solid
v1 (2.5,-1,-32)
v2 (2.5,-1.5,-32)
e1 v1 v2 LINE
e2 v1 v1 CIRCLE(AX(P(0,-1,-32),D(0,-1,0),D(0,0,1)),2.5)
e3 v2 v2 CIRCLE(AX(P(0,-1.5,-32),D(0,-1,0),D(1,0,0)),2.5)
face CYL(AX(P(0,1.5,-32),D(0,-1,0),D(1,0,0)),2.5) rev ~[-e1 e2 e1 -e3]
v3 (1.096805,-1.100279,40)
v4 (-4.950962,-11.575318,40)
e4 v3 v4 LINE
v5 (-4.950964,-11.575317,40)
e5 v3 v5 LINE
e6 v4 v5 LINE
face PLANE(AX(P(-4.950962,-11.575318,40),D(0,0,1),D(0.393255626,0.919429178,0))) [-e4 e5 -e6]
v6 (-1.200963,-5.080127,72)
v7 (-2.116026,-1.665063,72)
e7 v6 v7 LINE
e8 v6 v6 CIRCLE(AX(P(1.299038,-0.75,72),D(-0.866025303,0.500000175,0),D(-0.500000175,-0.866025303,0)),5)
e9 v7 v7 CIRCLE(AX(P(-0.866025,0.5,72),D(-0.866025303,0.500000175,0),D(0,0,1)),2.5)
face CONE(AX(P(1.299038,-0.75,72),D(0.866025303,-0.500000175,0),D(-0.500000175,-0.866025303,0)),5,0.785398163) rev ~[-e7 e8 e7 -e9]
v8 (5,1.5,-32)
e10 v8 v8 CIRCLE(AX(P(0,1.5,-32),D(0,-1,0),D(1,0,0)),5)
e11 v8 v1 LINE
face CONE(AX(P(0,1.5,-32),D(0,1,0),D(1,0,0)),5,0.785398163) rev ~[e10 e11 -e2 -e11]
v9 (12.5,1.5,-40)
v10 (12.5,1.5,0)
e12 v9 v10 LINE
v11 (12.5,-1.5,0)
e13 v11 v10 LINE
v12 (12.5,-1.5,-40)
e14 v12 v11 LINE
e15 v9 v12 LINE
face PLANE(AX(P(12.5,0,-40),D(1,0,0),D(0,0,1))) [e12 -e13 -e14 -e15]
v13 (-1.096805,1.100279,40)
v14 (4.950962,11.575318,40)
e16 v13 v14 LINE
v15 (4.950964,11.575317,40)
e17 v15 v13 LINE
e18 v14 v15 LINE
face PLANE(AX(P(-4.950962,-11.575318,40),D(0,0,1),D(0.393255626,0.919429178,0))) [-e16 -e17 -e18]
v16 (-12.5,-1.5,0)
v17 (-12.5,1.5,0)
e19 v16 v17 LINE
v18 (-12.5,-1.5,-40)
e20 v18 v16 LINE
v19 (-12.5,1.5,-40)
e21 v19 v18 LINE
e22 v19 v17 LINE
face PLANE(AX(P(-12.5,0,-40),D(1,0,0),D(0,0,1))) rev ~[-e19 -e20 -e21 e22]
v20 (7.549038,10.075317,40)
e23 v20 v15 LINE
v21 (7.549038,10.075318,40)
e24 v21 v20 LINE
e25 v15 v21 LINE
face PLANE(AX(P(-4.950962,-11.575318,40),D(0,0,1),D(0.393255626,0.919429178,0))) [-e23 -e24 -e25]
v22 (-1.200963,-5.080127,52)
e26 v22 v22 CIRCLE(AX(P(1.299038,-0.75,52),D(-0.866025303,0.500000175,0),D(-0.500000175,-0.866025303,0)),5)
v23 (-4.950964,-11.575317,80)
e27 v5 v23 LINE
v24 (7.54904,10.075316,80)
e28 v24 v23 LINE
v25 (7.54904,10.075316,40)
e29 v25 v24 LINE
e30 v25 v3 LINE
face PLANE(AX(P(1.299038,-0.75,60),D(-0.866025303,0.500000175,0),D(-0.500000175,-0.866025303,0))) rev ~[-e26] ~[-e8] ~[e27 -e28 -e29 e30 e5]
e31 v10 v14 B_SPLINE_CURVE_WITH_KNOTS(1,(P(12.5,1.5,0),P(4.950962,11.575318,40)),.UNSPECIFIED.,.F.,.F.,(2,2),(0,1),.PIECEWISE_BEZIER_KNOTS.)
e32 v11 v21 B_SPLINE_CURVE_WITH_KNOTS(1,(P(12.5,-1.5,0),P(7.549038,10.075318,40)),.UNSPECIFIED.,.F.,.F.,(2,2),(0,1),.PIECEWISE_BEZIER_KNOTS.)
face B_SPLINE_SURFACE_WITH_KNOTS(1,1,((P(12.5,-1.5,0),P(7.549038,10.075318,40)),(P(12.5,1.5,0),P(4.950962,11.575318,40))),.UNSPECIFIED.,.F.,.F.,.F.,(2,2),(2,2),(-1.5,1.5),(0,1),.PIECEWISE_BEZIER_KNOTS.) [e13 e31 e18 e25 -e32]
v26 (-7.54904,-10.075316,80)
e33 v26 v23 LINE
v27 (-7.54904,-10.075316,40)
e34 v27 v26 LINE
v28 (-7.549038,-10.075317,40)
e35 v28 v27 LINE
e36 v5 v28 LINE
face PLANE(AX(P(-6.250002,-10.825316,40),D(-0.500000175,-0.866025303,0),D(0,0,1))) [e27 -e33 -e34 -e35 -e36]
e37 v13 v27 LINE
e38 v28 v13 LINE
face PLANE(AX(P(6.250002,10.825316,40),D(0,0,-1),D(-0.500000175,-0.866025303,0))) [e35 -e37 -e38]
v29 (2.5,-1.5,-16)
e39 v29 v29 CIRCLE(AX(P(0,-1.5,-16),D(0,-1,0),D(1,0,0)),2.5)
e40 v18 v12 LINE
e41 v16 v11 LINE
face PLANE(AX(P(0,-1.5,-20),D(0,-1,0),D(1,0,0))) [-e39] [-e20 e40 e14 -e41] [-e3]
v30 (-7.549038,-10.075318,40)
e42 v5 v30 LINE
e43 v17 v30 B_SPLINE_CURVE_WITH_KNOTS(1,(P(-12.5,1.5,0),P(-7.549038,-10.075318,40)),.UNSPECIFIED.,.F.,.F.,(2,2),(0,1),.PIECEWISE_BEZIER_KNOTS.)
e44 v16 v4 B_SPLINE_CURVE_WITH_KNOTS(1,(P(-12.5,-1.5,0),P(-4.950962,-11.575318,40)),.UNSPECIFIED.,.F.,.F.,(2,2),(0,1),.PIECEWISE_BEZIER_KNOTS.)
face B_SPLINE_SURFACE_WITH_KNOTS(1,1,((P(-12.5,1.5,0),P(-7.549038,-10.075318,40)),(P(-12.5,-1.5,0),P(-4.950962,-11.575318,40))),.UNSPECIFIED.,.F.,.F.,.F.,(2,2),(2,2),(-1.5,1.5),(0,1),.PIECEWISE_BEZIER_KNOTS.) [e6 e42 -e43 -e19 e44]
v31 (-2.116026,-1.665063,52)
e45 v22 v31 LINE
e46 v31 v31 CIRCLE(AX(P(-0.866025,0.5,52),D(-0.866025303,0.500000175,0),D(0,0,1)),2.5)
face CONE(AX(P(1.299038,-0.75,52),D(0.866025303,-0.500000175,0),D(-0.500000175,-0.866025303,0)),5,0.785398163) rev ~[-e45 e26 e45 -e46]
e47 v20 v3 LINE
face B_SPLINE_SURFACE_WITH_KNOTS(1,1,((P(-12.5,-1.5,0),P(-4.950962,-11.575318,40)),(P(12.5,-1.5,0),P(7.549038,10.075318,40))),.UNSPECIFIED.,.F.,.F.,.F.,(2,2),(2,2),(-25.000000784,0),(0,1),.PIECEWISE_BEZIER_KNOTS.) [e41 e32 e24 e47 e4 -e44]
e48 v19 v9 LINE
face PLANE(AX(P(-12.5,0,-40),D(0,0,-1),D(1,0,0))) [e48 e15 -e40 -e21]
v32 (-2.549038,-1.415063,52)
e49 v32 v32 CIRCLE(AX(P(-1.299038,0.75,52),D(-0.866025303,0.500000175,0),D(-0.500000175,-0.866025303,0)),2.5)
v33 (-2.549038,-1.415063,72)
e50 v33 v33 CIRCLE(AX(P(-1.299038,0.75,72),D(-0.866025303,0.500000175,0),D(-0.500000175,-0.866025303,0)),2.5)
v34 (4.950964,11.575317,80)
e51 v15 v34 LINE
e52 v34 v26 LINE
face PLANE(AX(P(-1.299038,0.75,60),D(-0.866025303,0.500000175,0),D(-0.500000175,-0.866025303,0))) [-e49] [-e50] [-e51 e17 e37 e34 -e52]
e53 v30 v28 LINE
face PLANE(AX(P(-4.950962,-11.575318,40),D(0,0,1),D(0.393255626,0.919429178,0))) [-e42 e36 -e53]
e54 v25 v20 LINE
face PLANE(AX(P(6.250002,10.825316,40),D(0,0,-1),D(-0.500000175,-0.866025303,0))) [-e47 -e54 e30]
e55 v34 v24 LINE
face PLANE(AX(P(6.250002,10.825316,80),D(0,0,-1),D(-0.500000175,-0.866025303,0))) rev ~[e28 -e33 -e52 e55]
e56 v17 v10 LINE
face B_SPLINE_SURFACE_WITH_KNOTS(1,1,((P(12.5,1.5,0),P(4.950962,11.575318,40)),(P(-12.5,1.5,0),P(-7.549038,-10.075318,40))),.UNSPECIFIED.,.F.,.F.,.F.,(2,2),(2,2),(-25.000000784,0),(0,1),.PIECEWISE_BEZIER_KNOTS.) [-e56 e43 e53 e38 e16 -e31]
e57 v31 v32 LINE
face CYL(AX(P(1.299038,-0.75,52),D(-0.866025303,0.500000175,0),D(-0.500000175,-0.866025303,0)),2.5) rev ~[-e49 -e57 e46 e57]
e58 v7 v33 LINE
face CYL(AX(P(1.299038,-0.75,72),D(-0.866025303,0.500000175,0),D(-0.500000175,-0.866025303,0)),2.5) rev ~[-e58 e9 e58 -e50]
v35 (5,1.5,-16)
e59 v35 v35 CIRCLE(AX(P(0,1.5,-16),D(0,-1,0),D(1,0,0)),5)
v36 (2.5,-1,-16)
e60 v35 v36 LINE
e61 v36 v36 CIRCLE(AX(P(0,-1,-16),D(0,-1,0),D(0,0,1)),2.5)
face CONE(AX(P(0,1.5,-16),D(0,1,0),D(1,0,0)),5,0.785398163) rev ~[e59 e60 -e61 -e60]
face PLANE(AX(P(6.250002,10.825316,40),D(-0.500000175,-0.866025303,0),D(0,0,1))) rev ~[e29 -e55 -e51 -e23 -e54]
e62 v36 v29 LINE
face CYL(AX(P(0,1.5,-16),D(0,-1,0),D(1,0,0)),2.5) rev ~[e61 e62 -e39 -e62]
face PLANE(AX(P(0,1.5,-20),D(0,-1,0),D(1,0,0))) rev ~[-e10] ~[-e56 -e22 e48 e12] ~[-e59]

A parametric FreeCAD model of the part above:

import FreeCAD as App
import Part
import Sketcher

V = App.Vector
Q = App.Units.Quantity

doc = App.newDocument("Part")
body = doc.addObject("PartDesign::Body", "Body")

# Sketch on XZ plane
sketch1 = body.newObject("Sketcher::SketchObject", "Sketch")
sketch1.AttachmentSupport = (doc.getObject("XZ_Plane"), [""])
sketch1.MapMode = "FlatFace"
sketch1.addGeometry([
    Part.LineSegment(V(-12, 0, 0), V(-12, -40, 0)),
    Part.LineSegment(V(-12, -40, 0), V(12, -40, 0)),
    Part.LineSegment(V(12, -40, 0), V(12, 0, 0)),
    Part.LineSegment(V(12, 0, 0), V(-12, 0, 0)),
], False)
sketch1.addConstraint([
    Sketcher.Constraint("Coincident", 0, 2, 1, 1),
    Sketcher.Constraint("Coincident", 1, 2, 2, 1),
    Sketcher.Constraint("Coincident", 2, 2, 3, 1),
    Sketcher.Constraint("Coincident", 3, 2, 0, 1),
    Sketcher.Constraint("Vertical", 0),
    Sketcher.Constraint("Horizontal", 1),
    Sketcher.Constraint("Vertical", 2),
    Sketcher.Constraint("Horizontal", 3),
    Sketcher.Constraint("Symmetric", 2, 2, 3, 2, -1, 1),
    Sketcher.Constraint("DistanceX", 1, 1, 1, 2, 25.0),
    Sketcher.Constraint("DistanceY", 0, 2, 0, 1, 40.0),
])
pad1 = body.newObject("PartDesign::Pad", "Pad")
pad1.Profile = sketch1
pad1.Length = 3
pad1.Midplane = True
body2 = doc.addObject("PartDesign::Body", "Body001")

# Sketch on an angled plane
sketch2 = body2.newObject("Sketcher::SketchObject", "Sketch001")
sketch2.Placement = App.Placement(V(0, 0, 0), App.Rotation(V(-0.500000175, -0.866025303, 0), V(0, 0, 1), V(-0.866025303, 0.500000175, 0), "ZXY"))
sketch2.addGeometry([
    Part.LineSegment(V(-13, 80, 0), V(-13, 40, 0)),
    Part.LineSegment(V(-13, 40, 0), V(13, 40, 0)),
    Part.LineSegment(V(13, 40, 0), V(13, 80, 0)),
    Part.LineSegment(V(13, 80, 0), V(-13, 80, 0)),
], False)
sketch2.addConstraint([
    Sketcher.Constraint("Coincident", 0, 2, 1, 1),
    Sketcher.Constraint("Coincident", 1, 2, 2, 1),
    Sketcher.Constraint("Coincident", 2, 2, 3, 1),
    Sketcher.Constraint("Coincident", 3, 2, 0, 1),
    Sketcher.Constraint("Vertical", 0),
    Sketcher.Constraint("Horizontal", 1),
    Sketcher.Constraint("Vertical", 2),
    Sketcher.Constraint("Horizontal", 3),
    Sketcher.Constraint("DistanceX", 1, 1, 1, 2, 25.0),
    Sketcher.Constraint("DistanceY", 0, 2, 0, 1, 40.0),
    Sketcher.Constraint("DistanceY", -1, 1, 0, 2, 40.0),
    Sketcher.Constraint("DistanceX", 0, 2, -1, 1, 12.5),
])
pad2 = body2.newObject("PartDesign::Pad", "Pad001")
pad2.Profile = sketch2
pad2.Length = 3
pad2.Midplane = True
body.AllowCompound = True
doc.recompute()

boolean = body.newObject("PartDesign::Boolean", "Boolean")
boolean.Type = "Fuse"
boolean.addObjects([body2])

# Sketch on XY plane
sketch3 = body.newObject("Sketcher::SketchObject", "Sketch002")
sketch3.AttachmentSupport = (doc.getObject("XY_Plane"), [""])
sketch3.MapMode = "FlatFace"
sketch3.addGeometry([
    Part.LineSegment(V(-12.5, 1.5, 0), V(-12.5, -1.5, 0)),
    Part.LineSegment(V(-12.5, -1.5, 0), V(12.5, -1.5, 0)),
    Part.LineSegment(V(12.5, -1.5, 0), V(12.5, 1.5, 0)),
    Part.LineSegment(V(12.5, 1.5, 0), V(-12.5, 1.5, 0)),
], False)
sketch3.addConstraint([
    Sketcher.Constraint("Coincident", 0, 2, 1, 1),
    Sketcher.Constraint("Coincident", 1, 2, 2, 1),
    Sketcher.Constraint("Coincident", 2, 2, 3, 1),
    Sketcher.Constraint("Coincident", 3, 2, 0, 1),
    Sketcher.Constraint("Vertical", 0),
    Sketcher.Constraint("Horizontal", 1),
    Sketcher.Constraint("Vertical", 2),
    Sketcher.Constraint("Horizontal", 3),
    Sketcher.Constraint("Symmetric", 0, 2, 2, 2, -1, 1),
    Sketcher.Constraint("DistanceX", 1, 1, 1, 2, 25.0),
    Sketcher.Constraint("DistanceY", 0, 2, 0, 1, 3.0),
])

# Sketch on XY plane
sketch4 = body.newObject("Sketcher::SketchObject", "Sketch003")
sketch4.AttachmentSupport = (doc.getObject("XY_Plane"), [""])
sketch4.MapMode = "FlatFace"
sketch4.AttachmentOffset = App.Placement(V(0, 0, 40), App.Rotation())
sketch4.addGeometry([
    Part.LineSegment(V(7.5, 10.1, 0), V(-5, -11.6, 0)),
    Part.LineSegment(V(-5, -11.6, 0), V(-7.5, -10.1, 0)),
    Part.LineSegment(V(-7.5, -10.1, 0), V(5, 11.6, 0)),
    Part.LineSegment(V(5, 11.6, 0), V(7.5, 10.1, 0)),
], False)
sketch4.addConstraint([
    Sketcher.Constraint("Coincident", 0, 2, 1, 1),
    Sketcher.Constraint("Coincident", 1, 2, 2, 1),
    Sketcher.Constraint("Coincident", 2, 2, 3, 1),
    Sketcher.Constraint("Coincident", 3, 2, 0, 1),
    Sketcher.Constraint("Symmetric", 0, 2, 2, 2, -1, 1),
    Sketcher.Constraint("Symmetric", 1, 2, 3, 2, -1, 1),
    Sketcher.Constraint("Perpendicular", 0, 1),
    Sketcher.Constraint("Angle", 0, Q("-119.999999 deg")),
    Sketcher.Constraint("Distance", 0, 25.000001),
    Sketcher.Constraint("Distance", 1, 3.0),
])

additiveloft = body.newObject("PartDesign::AdditiveLoft", "AdditiveLoft")
additiveloft.Profile = sketch3
additiveloft.Sections = [sketch4]

# Sketch on XZ plane
sketch5 = body.newObject("Sketcher::SketchObject", "Sketch004")
sketch5.AttachmentSupport = (doc.getObject("XZ_Plane"), [""])
sketch5.MapMode = "FlatFace"
sketch5.AttachmentOffset = App.Placement(V(0, 0, -1.5), App.Rotation())
sketch5.addGeometry([
    Part.Circle(V(0, -32, 0), V(0, 0, 1), 2.5),
    Part.Circle(V(0, -16, 0), V(0, 0, 1), 2.5),
], False)
sketch5.addConstraint([
    Sketcher.Constraint("Equal", 0, 1),
    Sketcher.Constraint("PointOnObject", 0, 3, -2),
    Sketcher.Constraint("PointOnObject", 1, 3, -2),
    Sketcher.Constraint("Diameter", 0, 5.0),
    Sketcher.Constraint("DistanceY", 0, 3, -1, 1, 32.0),
    Sketcher.Constraint("DistanceY", 1, 3, -1, 1, 16.0),
])
doc.recompute()
hole = body.newObject("PartDesign::Hole", "Hole")
hole.Profile = sketch5
hole.ThreadType = "None"
hole.Diameter = 5
hole.DepthType = "ThroughAll"
hole.HoleCutType = "Countersink"
hole.HoleCutDiameter = 10
hole.HoleCutCountersinkAngle = 90
hole.Reversed = True

# Sketch on an angled plane
sketch6 = body.newObject("Sketcher::SketchObject", "Sketch005")
sketch6.Placement = App.Placement(V(1.299038, -0.75, 0), App.Rotation(V(0.500000175, 0.866025303, 0), V(0, 0, 1), V(0.866025303, -0.500000175, 0), "ZXY"))
sketch6.addGeometry([
    Part.Circle(V(0, 72, 0), V(0, 0, 1), 2.5),
    Part.Circle(V(0, 52, 0), V(0, 0, 1), 2.5),
], False)
sketch6.addConstraint([
    Sketcher.Constraint("Equal", 0, 1),
    Sketcher.Constraint("PointOnObject", 0, 3, -2),
    Sketcher.Constraint("PointOnObject", 1, 3, -2),
    Sketcher.Constraint("Diameter", 0, 5.0),
    Sketcher.Constraint("DistanceY", -1, 1, 0, 3, 72.0),
    Sketcher.Constraint("DistanceY", -1, 1, 1, 3, 52.0),
])
doc.recompute()
hole2 = body.newObject("PartDesign::Hole", "Hole001")
hole2.Profile = sketch6
hole2.ThreadType = "None"
hole2.Diameter = 5
hole2.DepthType = "ThroughAll"
hole2.HoleCutType = "Countersink"
hole2.HoleCutDiameter = 10
hole2.HoleCutCountersinkAngle = 90

doc.recompute()
